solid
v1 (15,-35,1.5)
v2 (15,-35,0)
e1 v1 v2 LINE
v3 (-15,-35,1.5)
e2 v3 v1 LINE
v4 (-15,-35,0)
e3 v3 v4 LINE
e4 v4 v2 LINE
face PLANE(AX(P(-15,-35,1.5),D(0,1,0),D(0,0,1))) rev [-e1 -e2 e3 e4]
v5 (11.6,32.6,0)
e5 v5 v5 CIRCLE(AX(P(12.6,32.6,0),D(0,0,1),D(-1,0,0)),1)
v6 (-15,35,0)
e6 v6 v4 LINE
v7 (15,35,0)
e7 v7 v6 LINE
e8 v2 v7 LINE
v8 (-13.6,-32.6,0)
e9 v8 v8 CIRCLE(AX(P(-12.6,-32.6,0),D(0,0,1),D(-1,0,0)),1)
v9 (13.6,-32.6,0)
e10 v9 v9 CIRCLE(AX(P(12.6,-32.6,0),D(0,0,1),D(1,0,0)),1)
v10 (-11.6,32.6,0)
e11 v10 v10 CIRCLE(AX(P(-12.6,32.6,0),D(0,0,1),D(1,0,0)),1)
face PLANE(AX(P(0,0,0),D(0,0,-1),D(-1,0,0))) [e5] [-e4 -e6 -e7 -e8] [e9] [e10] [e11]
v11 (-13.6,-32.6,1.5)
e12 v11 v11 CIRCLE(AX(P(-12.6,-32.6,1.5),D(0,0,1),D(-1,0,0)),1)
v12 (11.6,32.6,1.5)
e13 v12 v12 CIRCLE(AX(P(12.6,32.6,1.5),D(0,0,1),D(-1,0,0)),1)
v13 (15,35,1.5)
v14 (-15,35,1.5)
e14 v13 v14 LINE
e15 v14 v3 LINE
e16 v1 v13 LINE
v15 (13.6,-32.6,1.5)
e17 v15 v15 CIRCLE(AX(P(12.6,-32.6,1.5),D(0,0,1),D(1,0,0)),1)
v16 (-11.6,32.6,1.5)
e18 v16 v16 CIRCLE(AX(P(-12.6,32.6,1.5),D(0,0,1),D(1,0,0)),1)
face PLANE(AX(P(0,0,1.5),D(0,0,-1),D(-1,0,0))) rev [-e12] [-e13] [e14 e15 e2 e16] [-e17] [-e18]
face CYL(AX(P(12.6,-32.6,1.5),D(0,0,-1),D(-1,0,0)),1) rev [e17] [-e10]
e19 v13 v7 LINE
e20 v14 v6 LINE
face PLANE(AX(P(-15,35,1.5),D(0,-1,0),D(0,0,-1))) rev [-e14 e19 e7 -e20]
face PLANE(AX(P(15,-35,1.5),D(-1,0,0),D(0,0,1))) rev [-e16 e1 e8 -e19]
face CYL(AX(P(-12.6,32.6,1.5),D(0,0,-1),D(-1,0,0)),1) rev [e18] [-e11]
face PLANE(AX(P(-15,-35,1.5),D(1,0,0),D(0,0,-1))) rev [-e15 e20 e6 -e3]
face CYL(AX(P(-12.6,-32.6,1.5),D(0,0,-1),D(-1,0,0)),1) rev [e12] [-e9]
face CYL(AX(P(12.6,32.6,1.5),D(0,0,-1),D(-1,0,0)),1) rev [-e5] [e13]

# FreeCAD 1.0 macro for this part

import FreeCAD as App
import Part
import Sketcher

V = App.Vector
Q = App.Units.Quantity


def add_polygon(sketch, points):
    """Adds a closed chain of lines whose ends are joined by coincident constraints."""
    first, n = sketch.GeometryCount, len(points)
    for a, b in zip(points, points[1:] + points[:1]):
        sketch.addGeometry(Part.LineSegment(App.Vector(*a, 0), App.Vector(*b, 0)), False)
    for i in range(n):
        sketch.addConstraint(Sketcher.Constraint("Coincident", first + i, 2, first + (i + 1) % n, 1))

doc = App.newDocument("Part")
params = doc.addObject("Spreadsheet::Sheet", "Params")
for row, (alias, value) in enumerate([
    ("sketch1_diameter", "2 mm"),
    ("sketch1_width", "30 mm"),
    ("sketch1_height", "70 mm"),
    ("pad1_length", "1.5 mm"),
], start=1):
    params.set(f"A{row}", alias)
    params.set(f"B{row}", "=" + value)
    params.setAlias(f"B{row}", alias)

body = doc.addObject("PartDesign::Body", "Body")

sketch1 = body.newObject("Sketcher::SketchObject", "Sketch")
sketch1.AttachmentSupport = (doc.getObject("XY_Plane"), [""])
sketch1.MapMode = "FlatFace"
add_polygon(sketch1, [(-15, 35), (-15, -35), (15, -35), (15, 35)])
sketch1.addGeometry(Part.Circle(V(-12.6, -32.6, 0), V(0, 0, 1), 1), False)
sketch1.addGeometry(Part.Circle(V(12.6, -32.6, 0), V(0, 0, 1), 1), False)
sketch1.addGeometry(Part.Circle(V(-12.6, 32.6, 0), V(0, 0, 1), 1), False)
sketch1.addGeometry(Part.Circle(V(12.6, 32.6, 0), V(0, 0, 1), 1), False)
sketch1.addConstraint(Sketcher.Constraint("Vertical", 0))
sketch1.addConstraint(Sketcher.Constraint("Horizontal", 1))
sketch1.addConstraint(Sketcher.Constraint("Vertical", 2))
sketch1.addConstraint(Sketcher.Constraint("Horizontal", 3))
sketch1.addConstraint(Sketcher.Constraint("Equal", 4, 5))
sketch1.addConstraint(Sketcher.Constraint("Equal", 5, 6))
sketch1.addConstraint(Sketcher.Constraint("Equal", 6, 7))
sketch1.addConstraint(Sketcher.Constraint("Symmetric", 5, 3, 6, 3, -1, 1))
sketch1.addConstraint(Sketcher.Constraint("Symmetric", 4, 3, 7, 3, -1, 1))
sketch1.addConstraint(Sketcher.Constraint("Symmetric", 0, 2, 2, 2, -1, 1))
sketch1.addConstraint(Sketcher.Constraint("Symmetric", 4, 3, 5, 3, -2))
sketch1.addConstraint(Sketcher.Constraint("Diameter", 4, Q("2 mm")))
sketch1.addConstraint(Sketcher.Constraint("DistanceX", 1, 1, 1, 2, Q("30 mm")))
sketch1.addConstraint(Sketcher.Constraint("DistanceY", 0, 2, 0, 1, Q("70 mm")))
sketch1.addConstraint(Sketcher.Constraint("DistanceX", 4, 3, -1, 1, Q("12.6 mm")))
sketch1.addConstraint(Sketcher.Constraint("DistanceY", 4, 3, -1, 1, Q("32.6 mm")))
sketch1.setExpression("Constraints[15]", "Params.sketch1_diameter")
sketch1.setExpression("Constraints[16]", "Params.sketch1_width")
sketch1.setExpression("Constraints[17]", "Params.sketch1_height")
pad1 = body.newObject("PartDesign::Pad", "Pad")
pad1.Profile = sketch1
pad1.setExpression("Length", "Params.pad1_length")

doc.recompute()
